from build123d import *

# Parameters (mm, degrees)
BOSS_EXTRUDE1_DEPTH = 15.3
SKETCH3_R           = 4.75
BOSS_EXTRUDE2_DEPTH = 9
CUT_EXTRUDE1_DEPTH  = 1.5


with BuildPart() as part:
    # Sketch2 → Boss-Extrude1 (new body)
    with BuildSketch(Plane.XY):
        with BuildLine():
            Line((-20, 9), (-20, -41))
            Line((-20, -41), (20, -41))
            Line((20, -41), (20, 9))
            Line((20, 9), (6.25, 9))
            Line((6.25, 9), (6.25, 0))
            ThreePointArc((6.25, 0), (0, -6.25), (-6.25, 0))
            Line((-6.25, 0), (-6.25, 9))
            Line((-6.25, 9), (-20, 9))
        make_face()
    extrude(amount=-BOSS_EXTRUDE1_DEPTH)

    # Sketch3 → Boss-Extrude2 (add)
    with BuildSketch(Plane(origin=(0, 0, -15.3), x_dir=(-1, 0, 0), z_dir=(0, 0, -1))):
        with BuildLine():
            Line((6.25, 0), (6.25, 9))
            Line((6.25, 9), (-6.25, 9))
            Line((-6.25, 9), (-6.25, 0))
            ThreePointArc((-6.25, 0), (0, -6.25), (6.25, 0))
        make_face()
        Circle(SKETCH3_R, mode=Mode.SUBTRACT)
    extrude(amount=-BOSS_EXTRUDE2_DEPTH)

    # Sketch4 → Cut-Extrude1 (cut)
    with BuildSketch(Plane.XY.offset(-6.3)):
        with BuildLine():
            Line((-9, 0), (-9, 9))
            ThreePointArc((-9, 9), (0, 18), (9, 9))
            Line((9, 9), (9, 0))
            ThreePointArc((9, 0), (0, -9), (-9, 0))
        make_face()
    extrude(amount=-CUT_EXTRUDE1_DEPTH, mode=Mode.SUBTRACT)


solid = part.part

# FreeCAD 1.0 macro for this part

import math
import FreeCAD as App
import Part
import Sketcher

V = App.Vector

doc = App.newDocument("Part")
body = doc.addObject("PartDesign::Body", "Body")

# Sketch on XY plane
sketch1 = body.newObject("Sketcher::SketchObject", "Sketch")
sketch1.AttachmentSupport = (doc.getObject("XY_Plane"), [""])
sketch1.MapMode = "FlatFace"
sketch1.addGeometry([
    Part.LineSegment(V(-20, 9, 0), V(-20, -41, 0)),  # 0
    Part.LineSegment(V(-20, -41, 0), V(20, -41, 0)),  # 1
    Part.LineSegment(V(20, -41, 0), V(20, 9, 0)),  # 2
    Part.LineSegment(V(20, 9, 0), V(6, 9, 0)),  # 3
    Part.LineSegment(V(6, 9, 0), V(6, 0, 0)),  # 4
    Part.ArcOfCircle(Part.Circle(V(0, 0, 0), V(0, 0, 1), 6), math.radians(180), math.radians(360)),  # 5
    Part.LineSegment(V(-6, 0, 0), V(-6, 9, 0)),  # 6
    Part.LineSegment(V(-6, 9, 0), V(-20, 9, 0)),  # 7
], False)
sketch1.addConstraint([
    Sketcher.Constraint("Coincident", 0, 2, 1, 1),
    Sketcher.Constraint("Coincident", 1, 2, 2, 1),
    Sketcher.Constraint("Coincident", 2, 2, 3, 1),
    Sketcher.Constraint("Coincident", 3, 2, 4, 1),
    Sketcher.Constraint("Tangent", 4, 2, 5, 2),
    Sketcher.Constraint("Tangent", 5, 1, 6, 1),
    Sketcher.Constraint("Coincident", 6, 2, 7, 1),
    Sketcher.Constraint("Coincident", 7, 2, 0, 1),
    Sketcher.Constraint("Vertical", 0),
    Sketcher.Constraint("Horizontal", 1),
    Sketcher.Constraint("Vertical", 2),
    Sketcher.Constraint("Horizontal", 3),
    Sketcher.Constraint("Vertical", 4),
    Sketcher.Constraint("Vertical", 6),
    Sketcher.Constraint("Horizontal", 7),
    Sketcher.Constraint("Coincident", 5, 3, -1, 1),
    Sketcher.Constraint("Symmetric", 2, 2, 7, 2, -2),
    Sketcher.Constraint("DistanceX", 1, 1, 1, 2, 40.0),
    Sketcher.Constraint("DistanceY", 0, 2, 0, 1, 50.0),
    Sketcher.Constraint("DistanceY", 4, 2, 4, 1, 9.0),
    Sketcher.Constraint("Radius", 5, 6.25),
])
pad1 = body.newObject("PartDesign::Pad", "Pad")
pad1.Profile = sketch1
pad1.Length = 15.3
pad1.Reversed = True

# Sketch on XY plane
sketch2 = body.newObject("Sketcher::SketchObject", "Sketch001")
sketch2.AttachmentSupport = (doc.getObject("XY_Plane"), [""])
sketch2.MapMode = "FlatFace"
sketch2.AttachmentOffset = App.Placement(V(0, 0, -15.3), App.Rotation())
sketch2.addGeometry([
    Part.LineSegment(V(-6.2, 0, 0), V(-6.2, 9, 0)),  # 0
    Part.LineSegment(V(-6.2, 9, 0), V(6.2, 9, 0)),  # 1
    Part.LineSegment(V(6.2, 9, 0), V(6.2, 0, 0)),  # 2
    Part.ArcOfCircle(Part.Circle(V(0, 0, 0), V(0, 0, 1), 6.2), math.radians(180), math.radians(360)),  # 3
    Part.Circle(V(0, 0, 0), V(0, 0, 1), 4.8),  # 4
], False)
sketch2.addConstraint([
    Sketcher.Constraint("Coincident", 0, 2, 1, 1),
    Sketcher.Constraint("Coincident", 1, 2, 2, 1),
    Sketcher.Constraint("Tangent", 2, 2, 3, 2),
    Sketcher.Constraint("Tangent", 3, 1, 0, 1),
    Sketcher.Constraint("Vertical", 0),
    Sketcher.Constraint("Horizontal", 1),
    Sketcher.Constraint("Vertical", 2),
    Sketcher.Constraint("Coincident", 3, 3, -1, 1),
    Sketcher.Constraint("Coincident", 4, 3, -1, 1),
    Sketcher.Constraint("Diameter", 4, 9.5),
    Sketcher.Constraint("DistanceY", 0, 1, 0, 2, 9.0),
    Sketcher.Constraint("Radius", 3, 6.25),
])
pad2 = body.newObject("PartDesign::Pad", "Pad001")
pad2.Profile = sketch2
pad2.Length = 9

# Sketch on XY plane
sketch3 = body.newObject("Sketcher::SketchObject", "Sketch002")
sketch3.AttachmentSupport = (doc.getObject("XY_Plane"), [""])
sketch3.MapMode = "FlatFace"
sketch3.AttachmentOffset = App.Placement(V(0, 0, -6.3), App.Rotation())
sketch3.addGeometry([
    Part.LineSegment(V(-9, 9, 0), V(-9, 0, 0)),
    Part.ArcOfCircle(Part.Circle(V(0, 0, 0), V(0, 0, 1), 9), math.radians(180), math.radians(360)),
    Part.LineSegment(V(9, 0, 0), V(9, 9, 0)),
    Part.ArcOfCircle(Part.Circle(V(0, 9, 0), V(0, 0, 1), 9), math.radians(0), math.radians(180)),
], False)
sketch3.addConstraint([
    Sketcher.Constraint("Tangent", 0, 2, 1, 1),
    Sketcher.Constraint("Tangent", 1, 2, 2, 1),
    Sketcher.Constraint("Tangent", 2, 2, 3, 1),
    Sketcher.Constraint("Tangent", 3, 2, 0, 1),
    Sketcher.Constraint("Vertical", 0),
    Sketcher.Constraint("Vertical", 2),
    Sketcher.Constraint("Coincident", 1, 3, -1, 1),
    Sketcher.Constraint("Radius", 1, 9.0),
    Sketcher.Constraint("DistanceY", 0, 2, 0, 1, 9.0),
])
pocket1 = body.newObject("PartDesign::Pocket", "Pocket")
pocket1.Profile = sketch3
pocket1.Length = 1.5

doc.recompute()
